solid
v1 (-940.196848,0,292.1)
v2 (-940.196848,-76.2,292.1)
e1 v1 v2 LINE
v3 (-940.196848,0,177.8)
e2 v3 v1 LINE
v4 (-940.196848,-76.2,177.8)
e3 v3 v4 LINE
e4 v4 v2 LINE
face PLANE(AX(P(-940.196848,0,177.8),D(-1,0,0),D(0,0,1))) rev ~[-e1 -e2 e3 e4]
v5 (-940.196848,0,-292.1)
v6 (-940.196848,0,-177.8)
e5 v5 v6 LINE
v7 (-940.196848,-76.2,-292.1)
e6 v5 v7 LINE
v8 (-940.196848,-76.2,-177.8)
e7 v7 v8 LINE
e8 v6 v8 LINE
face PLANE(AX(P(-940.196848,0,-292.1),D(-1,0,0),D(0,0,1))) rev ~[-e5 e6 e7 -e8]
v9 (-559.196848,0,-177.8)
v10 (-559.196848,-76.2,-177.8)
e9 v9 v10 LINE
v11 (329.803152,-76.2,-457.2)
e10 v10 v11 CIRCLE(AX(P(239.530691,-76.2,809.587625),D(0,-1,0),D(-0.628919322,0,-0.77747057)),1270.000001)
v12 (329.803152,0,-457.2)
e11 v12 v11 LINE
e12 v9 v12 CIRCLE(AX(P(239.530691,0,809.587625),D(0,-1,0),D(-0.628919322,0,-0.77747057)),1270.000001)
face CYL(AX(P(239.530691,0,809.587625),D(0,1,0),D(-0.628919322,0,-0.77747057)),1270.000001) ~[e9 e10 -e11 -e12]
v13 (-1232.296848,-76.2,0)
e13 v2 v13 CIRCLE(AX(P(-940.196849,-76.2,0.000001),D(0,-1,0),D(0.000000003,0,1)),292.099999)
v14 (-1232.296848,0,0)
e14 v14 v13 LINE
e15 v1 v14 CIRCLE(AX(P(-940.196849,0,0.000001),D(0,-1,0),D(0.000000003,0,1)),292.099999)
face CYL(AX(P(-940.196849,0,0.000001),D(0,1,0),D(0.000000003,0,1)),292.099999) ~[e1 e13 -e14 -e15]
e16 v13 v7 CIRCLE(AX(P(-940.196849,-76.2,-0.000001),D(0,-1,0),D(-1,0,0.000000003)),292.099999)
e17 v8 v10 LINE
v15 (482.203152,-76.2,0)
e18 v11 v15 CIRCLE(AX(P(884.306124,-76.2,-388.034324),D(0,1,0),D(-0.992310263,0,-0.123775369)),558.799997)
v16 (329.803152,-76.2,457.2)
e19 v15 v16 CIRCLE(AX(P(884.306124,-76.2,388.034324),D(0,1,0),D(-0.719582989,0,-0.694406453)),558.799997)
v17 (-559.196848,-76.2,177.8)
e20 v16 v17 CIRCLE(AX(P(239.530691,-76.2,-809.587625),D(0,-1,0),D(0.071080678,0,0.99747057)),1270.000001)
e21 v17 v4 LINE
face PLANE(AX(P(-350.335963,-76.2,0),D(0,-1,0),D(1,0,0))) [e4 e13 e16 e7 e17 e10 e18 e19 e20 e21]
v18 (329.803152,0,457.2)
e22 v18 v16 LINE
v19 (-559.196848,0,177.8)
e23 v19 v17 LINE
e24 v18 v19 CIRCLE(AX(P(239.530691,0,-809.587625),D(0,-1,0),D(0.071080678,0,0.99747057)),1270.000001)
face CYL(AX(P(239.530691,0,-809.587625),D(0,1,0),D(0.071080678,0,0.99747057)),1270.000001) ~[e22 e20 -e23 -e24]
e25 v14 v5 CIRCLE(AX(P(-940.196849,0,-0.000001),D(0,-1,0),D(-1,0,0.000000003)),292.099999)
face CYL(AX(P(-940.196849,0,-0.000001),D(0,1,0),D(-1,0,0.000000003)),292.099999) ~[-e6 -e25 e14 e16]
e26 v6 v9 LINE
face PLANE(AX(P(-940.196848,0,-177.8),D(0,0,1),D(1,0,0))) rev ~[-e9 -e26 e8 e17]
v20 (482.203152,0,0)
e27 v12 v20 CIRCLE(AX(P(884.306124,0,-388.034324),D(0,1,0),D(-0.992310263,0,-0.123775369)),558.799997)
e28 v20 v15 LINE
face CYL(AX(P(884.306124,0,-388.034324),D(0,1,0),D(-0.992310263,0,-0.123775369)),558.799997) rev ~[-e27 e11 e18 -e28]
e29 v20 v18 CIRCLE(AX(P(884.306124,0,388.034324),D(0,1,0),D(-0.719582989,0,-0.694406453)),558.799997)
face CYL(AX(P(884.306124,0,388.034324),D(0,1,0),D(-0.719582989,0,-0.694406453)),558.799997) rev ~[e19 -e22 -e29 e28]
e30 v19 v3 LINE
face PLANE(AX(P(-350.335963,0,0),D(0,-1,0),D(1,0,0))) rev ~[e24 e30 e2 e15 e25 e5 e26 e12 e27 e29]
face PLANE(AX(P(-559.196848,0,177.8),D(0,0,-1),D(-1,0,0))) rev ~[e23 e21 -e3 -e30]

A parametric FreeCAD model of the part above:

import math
import FreeCAD as App
import Part
import Sketcher
from FreeCAD import Vector
Q = App.Units.Quantity

doc = App.newDocument("Part")
body = doc.addObject("PartDesign::Body", "Body")

# Sketch on XZ plane
sketch1 = body.newObject("Sketcher::SketchObject", "Sketch")
sketch1.AttachmentSupport = (doc.getObject("XZ_Plane"), [""])
sketch1.MapMode = "FlatFace"
sketch1.addGeometry(Part.LineSegment(Vector(-940.196848, 177.8, 0), Vector(-940.196848, 292.1, 0)), False)
sketch1.addGeometry(Part.ArcOfCircle(Part.Circle(Vector(-940.196849, 0.000001, 0), Vector(0, 0, 1), 292.099999), math.radians(90), math.radians(180)), False)
sketch1.addGeometry(Part.ArcOfCircle(Part.Circle(Vector(-940.196849, -0.000001, 0), Vector(0, 0, 1), 292.099999), math.radians(180), math.radians(270)), False)
sketch1.addGeometry(Part.LineSegment(Vector(-940.196848, -292.1, 0), Vector(-940.196848, -177.8, 0)), False)
sketch1.addGeometry(Part.LineSegment(Vector(-940.196848, -177.8, 0), Vector(-559.196848, -177.8, 0)), False)
sketch1.addGeometry(Part.ArcOfCircle(Part.Circle(Vector(239.530691, 809.587625, 0), Vector(0, 0, 1), 1270.000001), math.radians(-128.970437), math.radians(-85.92394)), False)
sketch1.addGeometry(Part.ArcOfCircle(Part.Circle(Vector(884.306124, -388.034324, 0), Vector(0, 0, 1), 558.799997), math.radians(136.020062), math.radians(187.11004)), False)
sketch1.addGeometry(Part.ArcOfCircle(Part.Circle(Vector(884.306124, 388.034324, 0), Vector(0, 0, 1), 558.799997), math.radians(172.88996), math.radians(223.979938)), False)
sketch1.addGeometry(Part.ArcOfCircle(Part.Circle(Vector(239.530691, -809.587625, 0), Vector(0, 0, 1), 1270.000001), math.radians(85.92394), math.radians(128.970437)), False)
sketch1.addGeometry(Part.LineSegment(Vector(-559.196848, 177.8, 0), Vector(-940.196848, 177.8, 0)), False)
sketch1.addConstraint(Sketcher.Constraint("Coincident", 0, 2, 1, 1))
sketch1.addConstraint(Sketcher.Constraint("Tangent", 1, 2, 2, 1))
sketch1.addConstraint(Sketcher.Constraint("Coincident", 2, 2, 3, 1))
sketch1.addConstraint(Sketcher.Constraint("Coincident", 3, 2, 4, 1))
sketch1.addConstraint(Sketcher.Constraint("Coincident", 4, 2, 5, 1))
sketch1.addConstraint(Sketcher.Constraint("Coincident", 5, 2, 6, 2))
sketch1.addConstraint(Sketcher.Constraint("Coincident", 6, 1, 7, 2))
sketch1.addConstraint(Sketcher.Constraint("Coincident", 7, 1, 8, 1))
sketch1.addConstraint(Sketcher.Constraint("Coincident", 8, 2, 9, 1))
sketch1.addConstraint(Sketcher.Constraint("Coincident", 9, 2, 0, 1))
sketch1.addConstraint(Sketcher.Constraint("Vertical", 0))
sketch1.addConstraint(Sketcher.Constraint("Vertical", 3))
sketch1.addConstraint(Sketcher.Constraint("Horizontal", 4))
sketch1.addConstraint(Sketcher.Constraint("Horizontal", 9))
sketch1.addConstraint(Sketcher.Constraint("Equal", 1, 2))
sketch1.addConstraint(Sketcher.Constraint("Equal", 6, 7))
sketch1.addConstraint(Sketcher.Constraint("Equal", 5, 8))
sketch1.addConstraint(Sketcher.Constraint("Symmetric", 6, 3, 7, 3, -1))
sketch1.addConstraint(Sketcher.Constraint("Symmetric", 5, 3, 8, 3, -1))
sketch1.addConstraint(Sketcher.Constraint("Symmetric", 0, 2, 2, 2, -1))
sketch1.addConstraint(Sketcher.Constraint("PointOnObject", 1, 2, -1))
sketch1.addConstraint(Sketcher.Constraint("Vertical", 2, 3, 0, 2))
sketch1.addConstraint(Sketcher.Constraint("Equal", 4, 9))
sketch1.addConstraint(Sketcher.Constraint("Radius", 5, Q("50.0000001 in")))
sketch1.addConstraint(Sketcher.Constraint("Radius", 6, Q("21.9999999 in")))
sketch1.addConstraint(Sketcher.Constraint("Radius", 1, Q("11.5 in")))
sketch1.addConstraint(Sketcher.Constraint("DistanceX", 4, 1, 4, 2, Q("15 in")))
sketch1.addConstraint(Sketcher.Constraint("DistanceY", 0, 1, 0, 2, Q("4.5 in")))
sketch1.addConstraint(Sketcher.Constraint("DistanceY", 5, 2, -1, 1, Q("18 in")))
sketch1.addConstraint(Sketcher.Constraint("DistanceY", 7, 3, 5, 3, 421.553301))
sketch1.addConstraint(Sketcher.Constraint("DistanceX", 1, 3, -1, 1, 940.196849))
sketch1.addConstraint(Sketcher.Constraint("DistanceX", -1, 1, 5, 3, 239.530691))
pad1 = body.newObject("PartDesign::Pad", "Pad")
pad1.Profile = sketch1
pad1.Length = Q("3 in")

doc.recompute()
